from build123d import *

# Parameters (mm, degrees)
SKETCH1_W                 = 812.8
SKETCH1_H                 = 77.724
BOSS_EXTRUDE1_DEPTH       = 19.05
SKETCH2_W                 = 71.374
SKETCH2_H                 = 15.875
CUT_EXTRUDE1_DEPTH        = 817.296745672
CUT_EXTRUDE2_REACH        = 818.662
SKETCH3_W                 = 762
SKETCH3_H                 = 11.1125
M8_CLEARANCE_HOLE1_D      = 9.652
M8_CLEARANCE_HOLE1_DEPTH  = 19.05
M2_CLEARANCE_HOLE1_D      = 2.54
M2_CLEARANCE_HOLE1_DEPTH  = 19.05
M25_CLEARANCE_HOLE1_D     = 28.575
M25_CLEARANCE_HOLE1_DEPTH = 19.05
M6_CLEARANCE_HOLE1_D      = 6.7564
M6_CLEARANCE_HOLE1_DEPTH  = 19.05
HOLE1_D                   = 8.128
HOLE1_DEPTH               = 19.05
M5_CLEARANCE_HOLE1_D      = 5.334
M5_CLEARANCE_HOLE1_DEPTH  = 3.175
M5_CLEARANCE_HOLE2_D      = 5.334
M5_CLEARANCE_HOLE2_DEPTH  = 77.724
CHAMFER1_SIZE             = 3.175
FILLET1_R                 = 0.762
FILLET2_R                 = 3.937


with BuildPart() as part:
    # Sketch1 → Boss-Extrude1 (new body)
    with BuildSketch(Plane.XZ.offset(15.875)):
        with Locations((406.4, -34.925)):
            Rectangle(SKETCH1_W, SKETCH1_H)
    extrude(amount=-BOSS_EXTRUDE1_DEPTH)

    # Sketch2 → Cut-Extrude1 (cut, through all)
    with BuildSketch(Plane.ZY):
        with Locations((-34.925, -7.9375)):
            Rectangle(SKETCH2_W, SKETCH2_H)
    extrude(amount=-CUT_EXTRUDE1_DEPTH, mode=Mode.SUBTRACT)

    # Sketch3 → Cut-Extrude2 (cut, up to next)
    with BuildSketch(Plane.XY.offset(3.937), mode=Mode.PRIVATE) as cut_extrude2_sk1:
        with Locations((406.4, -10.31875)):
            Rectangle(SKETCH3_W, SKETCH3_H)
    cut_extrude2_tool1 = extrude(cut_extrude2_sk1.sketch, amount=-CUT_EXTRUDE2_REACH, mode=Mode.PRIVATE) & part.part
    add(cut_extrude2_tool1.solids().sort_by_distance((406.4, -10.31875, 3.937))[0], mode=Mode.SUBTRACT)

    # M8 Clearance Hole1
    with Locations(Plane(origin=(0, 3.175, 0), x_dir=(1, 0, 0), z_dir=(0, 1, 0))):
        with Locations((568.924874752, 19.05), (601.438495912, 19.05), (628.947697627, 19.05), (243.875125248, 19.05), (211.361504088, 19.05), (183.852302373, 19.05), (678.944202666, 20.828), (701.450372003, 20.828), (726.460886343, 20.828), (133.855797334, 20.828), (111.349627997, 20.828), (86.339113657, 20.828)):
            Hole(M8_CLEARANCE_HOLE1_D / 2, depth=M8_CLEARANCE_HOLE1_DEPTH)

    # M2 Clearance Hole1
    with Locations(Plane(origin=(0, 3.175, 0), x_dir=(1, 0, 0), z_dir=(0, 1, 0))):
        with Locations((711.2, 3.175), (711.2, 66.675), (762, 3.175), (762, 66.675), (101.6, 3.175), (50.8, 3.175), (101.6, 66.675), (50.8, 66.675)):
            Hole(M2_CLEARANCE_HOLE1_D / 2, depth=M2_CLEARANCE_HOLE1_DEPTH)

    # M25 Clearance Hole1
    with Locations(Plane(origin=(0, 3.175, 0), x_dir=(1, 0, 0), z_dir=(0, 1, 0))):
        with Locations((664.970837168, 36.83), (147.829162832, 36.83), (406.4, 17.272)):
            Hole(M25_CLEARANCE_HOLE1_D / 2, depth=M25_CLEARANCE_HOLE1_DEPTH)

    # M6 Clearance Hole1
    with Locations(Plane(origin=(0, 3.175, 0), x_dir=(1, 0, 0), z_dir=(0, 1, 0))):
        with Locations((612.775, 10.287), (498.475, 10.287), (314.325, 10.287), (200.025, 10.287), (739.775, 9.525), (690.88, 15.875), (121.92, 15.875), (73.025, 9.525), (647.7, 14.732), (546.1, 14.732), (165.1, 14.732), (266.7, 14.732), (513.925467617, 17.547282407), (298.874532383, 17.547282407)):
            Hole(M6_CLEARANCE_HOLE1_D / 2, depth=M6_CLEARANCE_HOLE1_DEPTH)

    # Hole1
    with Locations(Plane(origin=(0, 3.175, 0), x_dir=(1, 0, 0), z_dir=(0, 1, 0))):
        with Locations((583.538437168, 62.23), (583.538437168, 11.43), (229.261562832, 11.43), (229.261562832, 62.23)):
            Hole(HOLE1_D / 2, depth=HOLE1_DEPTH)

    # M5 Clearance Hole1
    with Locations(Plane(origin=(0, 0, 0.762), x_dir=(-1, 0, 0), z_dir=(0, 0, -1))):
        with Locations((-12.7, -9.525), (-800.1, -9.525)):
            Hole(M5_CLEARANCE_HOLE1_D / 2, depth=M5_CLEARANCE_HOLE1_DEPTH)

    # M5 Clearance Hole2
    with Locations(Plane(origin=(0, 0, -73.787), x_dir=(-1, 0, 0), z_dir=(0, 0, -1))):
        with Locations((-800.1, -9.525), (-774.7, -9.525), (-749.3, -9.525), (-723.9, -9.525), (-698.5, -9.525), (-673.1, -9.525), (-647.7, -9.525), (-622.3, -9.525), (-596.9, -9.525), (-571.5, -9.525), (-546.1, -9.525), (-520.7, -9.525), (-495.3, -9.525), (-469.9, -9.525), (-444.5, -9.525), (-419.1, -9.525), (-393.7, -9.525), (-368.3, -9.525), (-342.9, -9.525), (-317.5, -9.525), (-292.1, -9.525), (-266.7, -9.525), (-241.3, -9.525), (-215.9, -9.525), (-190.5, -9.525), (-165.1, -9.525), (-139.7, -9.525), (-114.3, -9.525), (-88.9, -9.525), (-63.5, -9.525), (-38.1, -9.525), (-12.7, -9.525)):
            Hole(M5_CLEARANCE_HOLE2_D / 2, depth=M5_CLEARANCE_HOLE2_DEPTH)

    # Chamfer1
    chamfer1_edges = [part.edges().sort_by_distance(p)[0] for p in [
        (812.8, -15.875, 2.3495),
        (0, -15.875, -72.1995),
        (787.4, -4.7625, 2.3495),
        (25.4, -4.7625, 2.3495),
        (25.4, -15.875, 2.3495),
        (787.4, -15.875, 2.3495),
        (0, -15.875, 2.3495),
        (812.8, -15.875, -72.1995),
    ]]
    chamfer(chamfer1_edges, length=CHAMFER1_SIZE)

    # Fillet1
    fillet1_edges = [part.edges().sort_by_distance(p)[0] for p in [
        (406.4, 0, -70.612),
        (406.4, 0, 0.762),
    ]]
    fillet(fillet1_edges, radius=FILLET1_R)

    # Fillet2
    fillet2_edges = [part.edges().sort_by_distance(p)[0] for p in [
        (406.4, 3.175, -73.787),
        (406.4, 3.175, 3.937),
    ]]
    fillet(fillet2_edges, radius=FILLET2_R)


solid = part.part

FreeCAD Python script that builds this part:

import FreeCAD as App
import Part
import Sketcher
from FreeCAD import Vector
Q = App.Units.Quantity


def edges_at(feature, points):
    """Names of the edges that pass closest to the given points."""
    edges = feature.Shape.Edges
    near = lambda p: min(range(len(edges)), key=lambda i: edges[i].distToShape(Part.Vertex(*p))[0])
    return sorted({f"Edge{near(p) + 1}" for p in points})


def add_polygon(sketch, points):
    """Adds a closed chain of lines whose ends are joined by coincident constraints."""
    first, n = sketch.GeometryCount, len(points)
    for a, b in zip(points, points[1:] + points[:1]):
        sketch.addGeometry(Part.LineSegment(App.Vector(*a, 0), App.Vector(*b, 0)), False)
    for i in range(n):
        sketch.addConstraint(Sketcher.Constraint("Coincident", first + i, 2, first + (i + 1) % n, 1))

doc = App.newDocument("Part")
body = doc.addObject("PartDesign::Body", "Body")

sketch1 = doc.addObject("Sketcher::SketchObject", "Sketch")
body.addObject(sketch1)
sketch1.AttachmentSupport = (doc.XZ_Plane, [""])
sketch1.MapMode = "FlatFace"
sketch1.AttachmentOffset = App.Placement(Vector(0, 0, 0.625 * 25.4), App.Rotation())
add_polygon(sketch1, [(0, 4), (0, -74), (813, -74), (813, 4)])
sketch1.addConstraint([
    Sketcher.Constraint("Vertical", 0),
    Sketcher.Constraint("Horizontal", 1),
    Sketcher.Constraint("Vertical", 2),
    Sketcher.Constraint("Horizontal", 3),
    Sketcher.Constraint("PointOnObject", 0, 2, -2),
    Sketcher.Constraint("DistanceX", 1, 1, 1, 2, Q("32 in")),
    Sketcher.Constraint("DistanceY", 0, 2, 0, 1, Q("3.06 in")),
    Sketcher.Constraint("DistanceY", 0, 2, -1, 1, Q("2.905 in")),
])
pad1 = doc.addObject("PartDesign::Pad", "Pad")
body.addObject(pad1)
pad1.Profile = sketch1
pad1.Length = Q("0.75 in")
pad1.Reversed = True

sketch2 = doc.addObject("Sketcher::SketchObject", "Sketch001")
body.addObject(sketch2)
sketch2.AttachmentSupport = (doc.YZ_Plane, [""])
sketch2.MapMode = "FlatFace"
add_polygon(sketch2, [(0, -71), (-16, -71), (-16, 1), (0, 1)])
sketch2.addConstraint([
    Sketcher.Constraint("Horizontal", 0),
    Sketcher.Constraint("Vertical", 1),
    Sketcher.Constraint("Horizontal", 2),
    Sketcher.Constraint("Vertical", 3),
    Sketcher.Constraint("PointOnObject", 2, 2, -2),
    Sketcher.Constraint("DistanceY", 1, 1, 1, 2, Q("2.81 in")),
    Sketcher.Constraint("DistanceX", 0, 2, 0, 1, Q("0.625 in")),
    Sketcher.Constraint("DistanceY", 0, 2, -1, 1, Q("2.78 in")),
])
pocket1 = doc.addObject("PartDesign::Pocket", "Pocket")
body.addObject(pocket1)
pocket1.Profile = sketch2
pocket1.Type = "ThroughAll"
pocket1.Reversed = True

sketch3 = doc.addObject("Sketcher::SketchObject", "Sketch002")
body.addObject(sketch3)
sketch3.AttachmentSupport = (doc.XY_Plane, [""])
sketch3.MapMode = "FlatFace"
sketch3.AttachmentOffset = App.Placement(Vector(0, 0, 0.155 * 25.4), App.Rotation())
add_polygon(sketch3, [(25, -5), (25, -16), (787, -16), (787, -5)])
sketch3.addConstraint([
    Sketcher.Constraint("Vertical", 0),
    Sketcher.Constraint("Horizontal", 1),
    Sketcher.Constraint("Vertical", 2),
    Sketcher.Constraint("Horizontal", 3),
    Sketcher.Constraint("DistanceX", 1, 1, 1, 2, Q("30 in")),
    Sketcher.Constraint("DistanceX", -1, 1, 0, 2, Q("1 in")),
    Sketcher.Constraint("DistanceY", 0, 2, 0, 1, Q("0.4375 in")),
    Sketcher.Constraint("DistanceY", 0, 2, -1, 1, Q("0.625 in")),
])
pocket2 = doc.addObject("PartDesign::Pocket", "Pocket001")
body.addObject(pocket2)
pocket2.Profile = sketch3
pocket2.Type = "UpToFirst"

sketch4 = doc.addObject("Sketcher::SketchObject", "Sketch003")
body.addObject(sketch4)
sketch4.AttachmentSupport = (doc.XZ_Plane, [""])
sketch4.MapMode = "FlatFace"
sketch4.AttachmentOffset = App.Placement(Vector(0, 0, -0.125 * 25.4), App.Rotation())
sketch4.addGeometry([
    Part.Circle(Vector(568.9, -19.1, 0), Vector(0, 0, 1), 4.8),
    Part.Circle(Vector(601.4, -19.1, 0), Vector(0, 0, 1), 4.8),
    Part.Circle(Vector(628.9, -19.1, 0), Vector(0, 0, 1), 4.8),
    Part.Circle(Vector(243.9, -19.1, 0), Vector(0, 0, 1), 4.8),
    Part.Circle(Vector(211.4, -19.1, 0), Vector(0, 0, 1), 4.8),
    Part.Circle(Vector(183.9, -19.1, 0), Vector(0, 0, 1), 4.8),
    Part.Circle(Vector(678.9, -20.8, 0), Vector(0, 0, 1), 4.8),
    Part.Circle(Vector(701.5, -20.8, 0), Vector(0, 0, 1), 4.8),
    Part.Circle(Vector(726.5, -20.8, 0), Vector(0, 0, 1), 4.8),
    Part.Circle(Vector(133.9, -20.8, 0), Vector(0, 0, 1), 4.8),
    Part.Circle(Vector(111.3, -20.8, 0), Vector(0, 0, 1), 4.8),
    Part.Circle(Vector(86.3, -20.8, 0), Vector(0, 0, 1), 4.8),
], False)
sketch4.addConstraint([
    Sketcher.Constraint("Equal", 0, 1),
    Sketcher.Constraint("Equal", 1, 2),
    Sketcher.Constraint("Equal", 2, 3),
    Sketcher.Constraint("Equal", 3, 4),
    Sketcher.Constraint("Equal", 4, 5),
    Sketcher.Constraint("Equal", 5, 6),
    Sketcher.Constraint("Equal", 6, 7),
    Sketcher.Constraint("Equal", 7, 8),
    Sketcher.Constraint("Equal", 8, 9),
    Sketcher.Constraint("Equal", 9, 10),
    Sketcher.Constraint("Equal", 10, 11),
    Sketcher.Constraint("Horizontal", 0, 3, 1, 3),
    Sketcher.Constraint("Horizontal", 1, 3, 2, 3),
    Sketcher.Constraint("Horizontal", 2, 3, 3, 3),
    Sketcher.Constraint("Horizontal", 3, 3, 4, 3),
    Sketcher.Constraint("Horizontal", 4, 3, 5, 3),
    Sketcher.Constraint("Horizontal", 6, 3, 7, 3),
    Sketcher.Constraint("Horizontal", 7, 3, 8, 3),
    Sketcher.Constraint("Horizontal", 8, 3, 9, 3),
    Sketcher.Constraint("Horizontal", 9, 3, 10, 3),
    Sketcher.Constraint("Horizontal", 10, 3, 11, 3),
    Sketcher.Constraint("Diameter", 0, Q("0.38 in")),
    Sketcher.Constraint("DistanceY", 0, 3, -1, 1, Q("0.75 in")),
    Sketcher.Constraint("DistanceY", 6, 3, -1, 1, Q("0.82 in")),
    Sketcher.Constraint("DistanceX", 1, 3, 2, 3, 27.509202),
    Sketcher.Constraint("DistanceX", 5, 3, 4, 3, 27.509202),
    Sketcher.Constraint("DistanceX", 4, 3, 6, 3, 467.582699),
    Sketcher.Constraint("DistanceX", 9, 3, 1, 3, 467.582699),
    Sketcher.Constraint("DistanceX", 0, 3, 1, 3, 32.513621),
    Sketcher.Constraint("DistanceX", 3, 3, 0, 3, 325.04975),
    Sketcher.Constraint("DistanceX", 4, 3, 3, 3, 32.513621),
    Sketcher.Constraint("DistanceX", 6, 3, 7, 3, 22.506169),
    Sketcher.Constraint("DistanceX", 2, 3, 8, 3, 97.513189),
    Sketcher.Constraint("DistanceX", 10, 3, 9, 3, 22.506169),
    Sketcher.Constraint("DistanceX", 11, 3, 5, 3, 97.513189),
    Sketcher.Constraint("DistanceX", -1, 1, 0, 3, 568.924875),
])
doc.recompute()
hole = doc.addObject("PartDesign::Hole", "Hole")
body.addObject(hole)
hole.Profile = sketch4
hole.ThreadType = "None"
hole.Diameter = Q("0.38 in")
hole.DepthType = "Dimension"
hole.Depth = Q("0.75 in")
hole.DrillPoint = "Flat"
hole.Reversed = True

sketch5 = doc.addObject("Sketcher::SketchObject", "Sketch004")
body.addObject(sketch5)
sketch5.AttachmentSupport = (doc.XZ_Plane, [""])
sketch5.MapMode = "FlatFace"
sketch5.AttachmentOffset = App.Placement(Vector(0, 0, -0.125 * 25.4), App.Rotation())
sketch5.addGeometry([
    Part.Circle(Vector(711.2, -3.2, 0), Vector(0, 0, 1), 1.3),
    Part.Circle(Vector(711.2, -66.7, 0), Vector(0, 0, 1), 1.3),
    Part.Circle(Vector(762, -3.2, 0), Vector(0, 0, 1), 1.3),
    Part.Circle(Vector(762, -66.7, 0), Vector(0, 0, 1), 1.3),
    Part.Circle(Vector(101.6, -3.2, 0), Vector(0, 0, 1), 1.3),
    Part.Circle(Vector(50.8, -3.2, 0), Vector(0, 0, 1), 1.3),
    Part.Circle(Vector(101.6, -66.7, 0), Vector(0, 0, 1), 1.3),
    Part.Circle(Vector(50.8, -66.7, 0), Vector(0, 0, 1), 1.3),
], False)
sketch5.addConstraint([
    Sketcher.Constraint("Equal", 0, 1),
    Sketcher.Constraint("Equal", 1, 2),
    Sketcher.Constraint("Equal", 2, 3),
    Sketcher.Constraint("Equal", 3, 4),
    Sketcher.Constraint("Equal", 4, 5),
    Sketcher.Constraint("Equal", 5, 6),
    Sketcher.Constraint("Equal", 6, 7),
    Sketcher.Constraint("Horizontal", 0, 3, 2, 3),
    Sketcher.Constraint("Horizontal", 1, 3, 3, 3),
    Sketcher.Constraint("Horizontal", 2, 3, 4, 3),
    Sketcher.Constraint("Horizontal", 4, 3, 5, 3),
    Sketcher.Constraint("Horizontal", 3, 3, 6, 3),
    Sketcher.Constraint("Horizontal", 6, 3, 7, 3),
    Sketcher.Constraint("Vertical", 0, 3, 1, 3),
    Sketcher.Constraint("Vertical", 2, 3, 3, 3),
    Sketcher.Constraint("Vertical", 4, 3, 6, 3),
    Sketcher.Constraint("Vertical", 5, 3, 7, 3),
    Sketcher.Constraint("Diameter", 0, Q("0.1 in")),
    Sketcher.Constraint("DistanceX", -1, 1, 0, 3, Q("28 in")),
    Sketcher.Constraint("DistanceX", -1, 1, 2, 3, Q("30 in")),
    Sketcher.Constraint("DistanceX", -1, 1, 4, 3, Q("4 in")),
    Sketcher.Constraint("DistanceX", -1, 1, 5, 3, Q("2 in")),
    Sketcher.Constraint("DistanceY", 1, 3, 0, 3, Q("2.5 in")),
    Sketcher.Constraint("DistanceY", 0, 3, -1, 1, Q("0.125 in")),
])
doc.recompute()
hole2 = doc.addObject("PartDesign::Hole", "Hole001")
body.addObject(hole2)
hole2.Profile = sketch5
hole2.ThreadType = "None"
hole2.Diameter = Q("0.1 in")
hole2.DepthType = "Dimension"
hole2.Depth = Q("0.75 in")
hole2.DrillPoint = "Flat"
hole2.Reversed = True

sketch6 = doc.addObject("Sketcher::SketchObject", "Sketch005")
body.addObject(sketch6)
sketch6.AttachmentSupport = (doc.XZ_Plane, [""])
sketch6.MapMode = "FlatFace"
sketch6.AttachmentOffset = App.Placement(Vector(0, 0, -0.125 * 25.4), App.Rotation())
sketch6.addGeometry([
    Part.Circle(Vector(665, -37, 0), Vector(0, 0, 1), 14),
    Part.Circle(Vector(148, -37, 0), Vector(0, 0, 1), 14),
    Part.Circle(Vector(406, -17, 0), Vector(0, 0, 1), 14),
], False)
sketch6.addConstraint([
    Sketcher.Constraint("Equal", 0, 1),
    Sketcher.Constraint("Equal", 1, 2),
    Sketcher.Constraint("Horizontal", 0, 3, 1, 3),
    Sketcher.Constraint("Diameter", 0, Q("1.125 in")),
    Sketcher.Constraint("DistanceX", -1, 1, 2, 3, Q("16 in")),
    Sketcher.Constraint("DistanceY", 0, 3, -1, 1, Q("1.45 in")),
    Sketcher.Constraint("DistanceY", 2, 3, -1, 1, Q("0.68 in")),
    Sketcher.Constraint("DistanceX", -1, 1, 0, 3, 664.970837),
    Sketcher.Constraint("DistanceX", -1, 1, 1, 3, 147.829163),
])
doc.recompute()
hole3 = doc.addObject("PartDesign::Hole", "Hole002")
body.addObject(hole3)
hole3.Profile = sketch6
hole3.ThreadType = "None"
hole3.Diameter = Q("1.125 in")
hole3.DepthType = "Dimension"
hole3.Depth = Q("0.75 in")
hole3.DrillPoint = "Flat"
hole3.Reversed = True

sketch7 = doc.addObject("Sketcher::SketchObject", "Sketch006")
body.addObject(sketch7)
sketch7.AttachmentSupport = (doc.XZ_Plane, [""])
sketch7.MapMode = "FlatFace"
sketch7.AttachmentOffset = App.Placement(Vector(0, 0, -0.125 * 25.4), App.Rotation())
sketch7.addGeometry([
    Part.Circle(Vector(612.8, -10.3, 0), Vector(0, 0, 1), 3.4),
    Part.Circle(Vector(498.5, -10.3, 0), Vector(0, 0, 1), 3.4),
    Part.Circle(Vector(314.3, -10.3, 0), Vector(0, 0, 1), 3.4),
    Part.Circle(Vector(200, -10.3, 0), Vector(0, 0, 1), 3.4),
    Part.Circle(Vector(739.8, -9.5, 0), Vector(0, 0, 1), 3.4),
    Part.Circle(Vector(690.9, -15.9, 0), Vector(0, 0, 1), 3.4),
    Part.Circle(Vector(121.9, -15.9, 0), Vector(0, 0, 1), 3.4),
    Part.Circle(Vector(73, -9.5, 0), Vector(0, 0, 1), 3.4),
    Part.Circle(Vector(647.7, -14.7, 0), Vector(0, 0, 1), 3.4),
    Part.Circle(Vector(546.1, -14.7, 0), Vector(0, 0, 1), 3.4),
    Part.Circle(Vector(165.1, -14.7, 0), Vector(0, 0, 1), 3.4),
    Part.Circle(Vector(266.7, -14.7, 0), Vector(0, 0, 1), 3.4),
    Part.Circle(Vector(513.9, -17.5, 0), Vector(0, 0, 1), 3.4),
    Part.Circle(Vector(298.9, -17.5, 0), Vector(0, 0, 1), 3.4),
], False)
sketch7.addConstraint([
    Sketcher.Constraint("Equal", 0, 1),
    Sketcher.Constraint("Equal", 1, 2),
    Sketcher.Constraint("Equal", 2, 3),
    Sketcher.Constraint("Equal", 3, 4),
    Sketcher.Constraint("Equal", 4, 5),
    Sketcher.Constraint("Equal", 5, 6),
    Sketcher.Constraint("Equal", 6, 7),
    Sketcher.Constraint("Equal", 7, 8),
    Sketcher.Constraint("Equal", 8, 9),
    Sketcher.Constraint("Equal", 9, 10),
    Sketcher.Constraint("Equal", 10, 11),
    Sketcher.Constraint("Equal", 11, 12),
    Sketcher.Constraint("Equal", 12, 13),
    Sketcher.Constraint("Horizontal", 0, 3, 1, 3),
    Sketcher.Constraint("Horizontal", 1, 3, 2, 3),
    Sketcher.Constraint("Horizontal", 2, 3, 3, 3),
    Sketcher.Constraint("Horizontal", 5, 3, 6, 3),
    Sketcher.Constraint("Horizontal", 4, 3, 7, 3),
    Sketcher.Constraint("Horizontal", 8, 3, 9, 3),
    Sketcher.Constraint("Horizontal", 9, 3, 10, 3),
    Sketcher.Constraint("Horizontal", 10, 3, 11, 3),
    Sketcher.Constraint("Horizontal", 12, 3, 13, 3),
    Sketcher.Constraint("Diameter", 0, Q("0.266 in")),
    Sketcher.Constraint("DistanceX", 0, 3, 4, 3, Q("5 in")),
    Sketcher.Constraint("DistanceX", 7, 3, 3, 3, Q("5 in")),
    Sketcher.Constraint("DistanceX", 9, 3, 8, 3, Q("4 in")),
    Sketcher.Constraint("DistanceX", 10, 3, 11, 3, Q("4 in")),
    Sketcher.Constraint("DistanceX", -1, 1, 5, 3, Q("27.2 in")),
    Sketcher.Constraint("DistanceX", -1, 1, 6, 3, Q("4.8 in")),
    Sketcher.Constraint("DistanceX", -1, 1, 8, 3, Q("25.5 in")),
    Sketcher.Constraint("DistanceX", -1, 1, 10, 3, Q("6.5 in")),
    Sketcher.Constraint("DistanceX", 1, 3, 0, 3, Q("4.5 in")),
    Sketcher.Constraint("DistanceX", 3, 3, 2, 3, Q("4.5 in")),
    Sketcher.Constraint("DistanceY", 8, 3, -1, 1, Q("0.58 in")),
    Sketcher.Constraint("DistanceX", 2, 3, 1, 3, Q("7.25 in")),
    Sketcher.Constraint("DistanceY", 0, 3, 4, 3, Q("0.03 in")),
    Sketcher.Constraint("DistanceY", 5, 3, 4, 3, Q("0.25 in")),
    Sketcher.Constraint("DistanceX", -1, 1, 0, 3, Q("24.125 in")),
    Sketcher.Constraint("DistanceY", 0, 3, -1, 1, Q("0.405 in")),
    Sketcher.Constraint("DistanceX", -1, 1, 12, 3, 513.925468),
    Sketcher.Constraint("DistanceY", 12, 3, -1, 1, 17.547282),
    Sketcher.Constraint("DistanceX", -1, 1, 13, 3, 298.874532),
])
doc.recompute()
hole4 = doc.addObject("PartDesign::Hole", "Hole003")
body.addObject(hole4)
hole4.Profile = sketch7
hole4.ThreadType = "None"
hole4.Diameter = Q("0.266 in")
hole4.DepthType = "Dimension"
hole4.Depth = Q("0.75 in")
hole4.DrillPoint = "Flat"
hole4.Reversed = True

sketch8 = doc.addObject("Sketcher::SketchObject", "Sketch007")
body.addObject(sketch8)
sketch8.AttachmentSupport = (doc.XZ_Plane, [""])
sketch8.MapMode = "FlatFace"
sketch8.AttachmentOffset = App.Placement(Vector(0, 0, -0.125 * 25.4), App.Rotation())
sketch8.addGeometry([
    Part.Circle(Vector(583.5, -62.2, 0), Vector(0, 0, 1), 4.1),
    Part.Circle(Vector(583.5, -11.4, 0), Vector(0, 0, 1), 4.1),
    Part.Circle(Vector(229.3, -11.4, 0), Vector(0, 0, 1), 4.1),
    Part.Circle(Vector(229.3, -62.2, 0), Vector(0, 0, 1), 4.1),
], False)
sketch8.addConstraint([
    Sketcher.Constraint("Equal", 0, 1),
    Sketcher.Constraint("Equal", 1, 2),
    Sketcher.Constraint("Equal", 2, 3),
    Sketcher.Constraint("Horizontal", 1, 3, 2, 3),
    Sketcher.Constraint("Horizontal", 0, 3, 3, 3),
    Sketcher.Constraint("Vertical", 0, 3, 1, 3),
    Sketcher.Constraint("Vertical", 2, 3, 3, 3),
    Sketcher.Constraint("Diameter", 0, Q("0.32 in")),
    Sketcher.Constraint("DistanceY", 0, 3, 1, 3, Q("2 in")),
    Sketcher.Constraint("DistanceY", 0, 3, -1, 1, Q("2.45 in")),
    Sketcher.Constraint("DistanceX", -1, 1, 0, 3, 583.538437),
    Sketcher.Constraint("DistanceX", -1, 1, 2, 3, 229.261563),
])
doc.recompute()
hole5 = doc.addObject("PartDesign::Hole", "Hole004")
body.addObject(hole5)
hole5.Profile = sketch8
hole5.ThreadType = "None"
hole5.Diameter = Q("0.32 in")
hole5.DepthType = "Dimension"
hole5.Depth = Q("0.75 in")
hole5.DrillPoint = "Flat"
hole5.Reversed = True

sketch9 = doc.addObject("Sketcher::SketchObject", "Sketch008")
body.addObject(sketch9)
sketch9.AttachmentSupport = (doc.XY_Plane, [""])
sketch9.MapMode = "FlatFace"
sketch9.AttachmentOffset = App.Placement(Vector(0, 0, 0.03 * 25.4), App.Rotation())
sketch9.addGeometry([
    Part.Circle(Vector(12.7, -9.5, 0), Vector(0, 0, 1), 2.7),
    Part.Circle(Vector(800.1, -9.5, 0), Vector(0, 0, 1), 2.7),
], False)
sketch9.addConstraint([
    Sketcher.Constraint("Equal", 0, 1),
    Sketcher.Constraint("Horizontal", 0, 3, 1, 3),
    Sketcher.Constraint("Diameter", 0, Q("0.21 in")),
    Sketcher.Constraint("DistanceX", 0, 3, 1, 3, Q("31 in")),
    Sketcher.Constraint("DistanceX", -1, 1, 0, 3, Q("0.5 in")),
    Sketcher.Constraint("DistanceY", 0, 3, -1, 1, Q("0.375 in")),
])
doc.recompute()
hole6 = doc.addObject("PartDesign::Hole", "Hole005")
body.addObject(hole6)
hole6.Profile = sketch9
hole6.ThreadType = "None"
hole6.Diameter = Q("0.21 in")
hole6.DepthType = "Dimension"
hole6.Depth = Q("0.125 in")
hole6.DrillPoint = "Flat"
hole6.Reversed = True

sketch10 = doc.addObject("Sketcher::SketchObject", "Sketch009")
body.addObject(sketch10)
sketch10.AttachmentSupport = (doc.XY_Plane, [""])
sketch10.MapMode = "FlatFace"
sketch10.AttachmentOffset = App.Placement(Vector(0, 0, -2.905 * 25.4), App.Rotation())
sketch10.addGeometry([
    Part.Circle(Vector(800.1, -9.5, 0), Vector(0, 0, 1), 2.7),
    Part.Circle(Vector(774.7, -9.5, 0), Vector(0, 0, 1), 2.7),
    Part.Circle(Vector(749.3, -9.5, 0), Vector(0, 0, 1), 2.7),
    Part.Circle(Vector(723.9, -9.5, 0), Vector(0, 0, 1), 2.7),
    Part.Circle(Vector(698.5, -9.5, 0), Vector(0, 0, 1), 2.7),
    Part.Circle(Vector(673.1, -9.5, 0), Vector(0, 0, 1), 2.7),
    Part.Circle(Vector(647.7, -9.5, 0), Vector(0, 0, 1), 2.7),
    Part.Circle(Vector(622.3, -9.5, 0), Vector(0, 0, 1), 2.7),
    Part.Circle(Vector(596.9, -9.5, 0), Vector(0, 0, 1), 2.7),
    Part.Circle(Vector(571.5, -9.5, 0), Vector(0, 0, 1), 2.7),
    Part.Circle(Vector(546.1, -9.5, 0), Vector(0, 0, 1), 2.7),
    Part.Circle(Vector(520.7, -9.5, 0), Vector(0, 0, 1), 2.7),
    Part.Circle(Vector(495.3, -9.5, 0), Vector(0, 0, 1), 2.7),
    Part.Circle(Vector(469.9, -9.5, 0), Vector(0, 0, 1), 2.7),
    Part.Circle(Vector(444.5, -9.5, 0), Vector(0, 0, 1), 2.7),
    Part.Circle(Vector(419.1, -9.5, 0), Vector(0, 0, 1), 2.7),
    Part.Circle(Vector(393.7, -9.5, 0), Vector(0, 0, 1), 2.7),
    Part.Circle(Vector(368.3, -9.5, 0), Vector(0, 0, 1), 2.7),
    Part.Circle(Vector(342.9, -9.5, 0), Vector(0, 0, 1), 2.7),
    Part.Circle(Vector(317.5, -9.5, 0), Vector(0, 0, 1), 2.7),
    Part.Circle(Vector(292.1, -9.5, 0), Vector(0, 0, 1), 2.7),
    Part.Circle(Vector(266.7, -9.5, 0), Vector(0, 0, 1), 2.7),
    Part.Circle(Vector(241.3, -9.5, 0), Vector(0, 0, 1), 2.7),
    Part.Circle(Vector(215.9, -9.5, 0), Vector(0, 0, 1), 2.7),
    Part.Circle(Vector(190.5, -9.5, 0), Vector(0, 0, 1), 2.7),
    Part.Circle(Vector(165.1, -9.5, 0), Vector(0, 0, 1), 2.7),
    Part.Circle(Vector(139.7, -9.5, 0), Vector(0, 0, 1), 2.7),
    Part.Circle(Vector(114.3, -9.5, 0), Vector(0, 0, 1), 2.7),
    Part.Circle(Vector(88.9, -9.5, 0), Vector(0, 0, 1), 2.7),
    Part.Circle(Vector(63.5, -9.5, 0), Vector(0, 0, 1), 2.7),
    Part.Circle(Vector(38.1, -9.5, 0), Vector(0, 0, 1), 2.7),
    Part.Circle(Vector(12.7, -9.5, 0), Vector(0, 0, 1), 2.7),
], False)
sketch10.addConstraint([
    Sketcher.Constraint("Equal", 0, 1),
    Sketcher.Constraint("Equal", 1, 2),
    Sketcher.Constraint("Equal", 2, 3),
    Sketcher.Constraint("Equal", 3, 4),
    Sketcher.Constraint("Equal", 4, 5),
    Sketcher.Constraint("Equal", 5, 6),
    Sketcher.Constraint("Equal", 6, 7),
    Sketcher.Constraint("Equal", 7, 8),
    Sketcher.Constraint("Equal", 8, 9),
    Sketcher.Constraint("Equal", 9, 10),
    Sketcher.Constraint("Equal", 10, 11),
    Sketcher.Constraint("Equal", 11, 12),
    Sketcher.Constraint("Equal", 12, 13),
    Sketcher.Constraint("Equal", 13, 14),
    Sketcher.Constraint("Equal", 14, 15),
    Sketcher.Constraint("Equal", 15, 16),
    Sketcher.Constraint("Equal", 16, 17),
    Sketcher.Constraint("Equal", 17, 18),
    Sketcher.Constraint("Equal", 18, 19),
    Sketcher.Constraint("Equal", 19, 20),
    Sketcher.Constraint("Equal", 20, 21),
    Sketcher.Constraint("Equal", 21, 22),
    Sketcher.Constraint("Equal", 22, 23),
    Sketcher.Constraint("Equal", 23, 24),
    Sketcher.Constraint("Equal", 24, 25),
    Sketcher.Constraint("Equal", 25, 26),
    Sketcher.Constraint("Equal", 26, 27),
    Sketcher.Constraint("Equal", 27, 28),
    Sketcher.Constraint("Equal", 28, 29),
    Sketcher.Constraint("Equal", 29, 30),
    Sketcher.Constraint("Equal", 30, 31),
    Sketcher.Constraint("Horizontal", 0, 3, 1, 3),
    Sketcher.Constraint("Horizontal", 1, 3, 2, 3),
    Sketcher.Constraint("Horizontal", 2, 3, 3, 3),
    Sketcher.Constraint("Horizontal", 3, 3, 4, 3),
    Sketcher.Constraint("Horizontal", 4, 3, 5, 3),
    Sketcher.Constraint("Horizontal", 5, 3, 6, 3),
    Sketcher.Constraint("Horizontal", 6, 3, 7, 3),
    Sketcher.Constraint("Horizontal", 7, 3, 8, 3),
    Sketcher.Constraint("Horizontal", 8, 3, 9, 3),
    Sketcher.Constraint("Horizontal", 9, 3, 10, 3),
    Sketcher.Constraint("Horizontal", 10, 3, 11, 3),
    Sketcher.Constraint("Horizontal", 11, 3, 12, 3),
    Sketcher.Constraint("Horizontal", 12, 3, 13, 3),
    Sketcher.Constraint("Horizontal", 13, 3, 14, 3),
    Sketcher.Constraint("Horizontal", 14, 3, 15, 3),
    Sketcher.Constraint("Horizontal", 15, 3, 16, 3),
    Sketcher.Constraint("Horizontal", 16, 3, 17, 3),
    Sketcher.Constraint("Horizontal", 17, 3, 18, 3),
    Sketcher.Constraint("Horizontal", 18, 3, 19, 3),
    Sketcher.Constraint("Horizontal", 19, 3, 20, 3),
    Sketcher.Constraint("Horizontal", 20, 3, 21, 3),
    Sketcher.Constraint("Horizontal", 21, 3, 22, 3),
    Sketcher.Constraint("Horizontal", 22, 3, 23, 3),
    Sketcher.Constraint("Horizontal", 23, 3, 24, 3),
    Sketcher.Constraint("Horizontal", 24, 3, 25, 3),
    Sketcher.Constraint("Horizontal", 25, 3, 26, 3),
    Sketcher.Constraint("Horizontal", 26, 3, 27, 3),
    Sketcher.Constraint("Horizontal", 27, 3, 28, 3),
    Sketcher.Constraint("Horizontal", 28, 3, 29, 3),
    Sketcher.Constraint("Horizontal", 29, 3, 30, 3),
    Sketcher.Constraint("Horizontal", 30, 3, 31, 3),
    Sketcher.Constraint("Diameter", 0, Q("0.21 in")),
    Sketcher.Constraint("DistanceX", 1, 3, 0, 3, Q("1 in")),
    Sketcher.Constraint("DistanceX", 2, 3, 1, 3, Q("1 in")),
    Sketcher.Constraint("DistanceX", 3, 3, 2, 3, Q("1 in")),
    Sketcher.Constraint("DistanceX", 4, 3, 3, 3, Q("1 in")),
    Sketcher.Constraint("DistanceX", 5, 3, 4, 3, Q("1 in")),
    Sketcher.Constraint("DistanceX", 6, 3, 5, 3, Q("1 in")),
    Sketcher.Constraint("DistanceX", 7, 3, 6, 3, Q("1 in")),
    Sketcher.Constraint("DistanceX", 8, 3, 7, 3, Q("1 in")),
    Sketcher.Constraint("DistanceX", 9, 3, 8, 3, Q("1 in")),
    Sketcher.Constraint("DistanceX", 10, 3, 9, 3, Q("1 in")),
    Sketcher.Constraint("DistanceX", 11, 3, 10, 3, Q("1 in")),
    Sketcher.Constraint("DistanceX", 12, 3, 11, 3, Q("1 in")),
    Sketcher.Constraint("DistanceX", 13, 3, 12, 3, Q("1 in")),
    Sketcher.Constraint("DistanceX", 14, 3, 13, 3, Q("1 in")),
    Sketcher.Constraint("DistanceX", 15, 3, 14, 3, Q("1 in")),
    Sketcher.Constraint("DistanceX", 16, 3, 15, 3, Q("1 in")),
    Sketcher.Constraint("DistanceX", 17, 3, 16, 3, Q("1 in")),
    Sketcher.Constraint("DistanceX", 18, 3, 17, 3, Q("1 in")),
    Sketcher.Constraint("DistanceX", 19, 3, 18, 3, Q("1 in")),
    Sketcher.Constraint("DistanceX", 20, 3, 19, 3, Q("1 in")),
    Sketcher.Constraint("DistanceX", 21, 3, 20, 3, Q("1 in")),
    Sketcher.Constraint("DistanceX", 22, 3, 21, 3, Q("1 in")),
    Sketcher.Constraint("DistanceX", 23, 3, 22, 3, Q("1 in")),
    Sketcher.Constraint("DistanceX", 24, 3, 23, 3, Q("1 in")),
    Sketcher.Constraint("DistanceX", 25, 3, 24, 3, Q("1 in")),
    Sketcher.Constraint("DistanceX", 26, 3, 25, 3, Q("1 in")),
    Sketcher.Constraint("DistanceX", 27, 3, 26, 3, Q("1 in")),
    Sketcher.Constraint("DistanceX", 28, 3, 27, 3, Q("1 in")),
    Sketcher.Constraint("DistanceX", 29, 3, 28, 3, Q("1 in")),
    Sketcher.Constraint("DistanceX", 30, 3, 29, 3, Q("1 in")),
    Sketcher.Constraint("DistanceX", 31, 3, 30, 3, Q("1 in")),
    Sketcher.Constraint("DistanceX", -1, 1, 0, 3, Q("31.5 in")),
    Sketcher.Constraint("DistanceY", 0, 3, -1, 1, Q("0.375 in")),
])
doc.recompute()
hole7 = doc.addObject("PartDesign::Hole", "Hole006")
body.addObject(hole7)
hole7.Profile = sketch10
hole7.ThreadType = "None"
hole7.Diameter = Q("0.21 in")
hole7.DepthType = "Dimension"
hole7.Depth = Q("3.06 in")
hole7.DrillPoint = "Flat"
hole7.Reversed = True
doc.recompute()

chamfer = doc.addObject("PartDesign::Chamfer", "Chamfer")
body.addObject(chamfer)
chamfer.Base = (hole7, edges_at(hole7, [
    (812.8, -15.875, 2.349),
    (0, -15.875, -72.2),
    (787.4, -4.763, 2.349),
    (25.4, -4.763, 2.349),
    (25.4, -15.875, 2.349),
    (787.4, -15.875, 2.349),
    (0, -15.875, 2.349),
    (812.8, -15.875, -72.2),
]))
chamfer.Size = Q("0.125 in")
doc.recompute()

fillet = doc.addObject("PartDesign::Fillet", "Fillet")
body.addObject(fillet)
fillet.Base = (chamfer, edges_at(chamfer, [(406.4, 0, -70.612), (406.4, 0, 0.762)]))
fillet.Radius = Q("0.03 in")
doc.recompute()

fillet2 = doc.addObject("PartDesign::Fillet", "Fillet001")
body.addObject(fillet2)
fillet2.Base = (fillet, edges_at(fillet, [(406.4, 3.175, -73.787), (406.4, 3.175, 3.937)]))
fillet2.Radius = Q("0.155 in")

doc.recompute()
